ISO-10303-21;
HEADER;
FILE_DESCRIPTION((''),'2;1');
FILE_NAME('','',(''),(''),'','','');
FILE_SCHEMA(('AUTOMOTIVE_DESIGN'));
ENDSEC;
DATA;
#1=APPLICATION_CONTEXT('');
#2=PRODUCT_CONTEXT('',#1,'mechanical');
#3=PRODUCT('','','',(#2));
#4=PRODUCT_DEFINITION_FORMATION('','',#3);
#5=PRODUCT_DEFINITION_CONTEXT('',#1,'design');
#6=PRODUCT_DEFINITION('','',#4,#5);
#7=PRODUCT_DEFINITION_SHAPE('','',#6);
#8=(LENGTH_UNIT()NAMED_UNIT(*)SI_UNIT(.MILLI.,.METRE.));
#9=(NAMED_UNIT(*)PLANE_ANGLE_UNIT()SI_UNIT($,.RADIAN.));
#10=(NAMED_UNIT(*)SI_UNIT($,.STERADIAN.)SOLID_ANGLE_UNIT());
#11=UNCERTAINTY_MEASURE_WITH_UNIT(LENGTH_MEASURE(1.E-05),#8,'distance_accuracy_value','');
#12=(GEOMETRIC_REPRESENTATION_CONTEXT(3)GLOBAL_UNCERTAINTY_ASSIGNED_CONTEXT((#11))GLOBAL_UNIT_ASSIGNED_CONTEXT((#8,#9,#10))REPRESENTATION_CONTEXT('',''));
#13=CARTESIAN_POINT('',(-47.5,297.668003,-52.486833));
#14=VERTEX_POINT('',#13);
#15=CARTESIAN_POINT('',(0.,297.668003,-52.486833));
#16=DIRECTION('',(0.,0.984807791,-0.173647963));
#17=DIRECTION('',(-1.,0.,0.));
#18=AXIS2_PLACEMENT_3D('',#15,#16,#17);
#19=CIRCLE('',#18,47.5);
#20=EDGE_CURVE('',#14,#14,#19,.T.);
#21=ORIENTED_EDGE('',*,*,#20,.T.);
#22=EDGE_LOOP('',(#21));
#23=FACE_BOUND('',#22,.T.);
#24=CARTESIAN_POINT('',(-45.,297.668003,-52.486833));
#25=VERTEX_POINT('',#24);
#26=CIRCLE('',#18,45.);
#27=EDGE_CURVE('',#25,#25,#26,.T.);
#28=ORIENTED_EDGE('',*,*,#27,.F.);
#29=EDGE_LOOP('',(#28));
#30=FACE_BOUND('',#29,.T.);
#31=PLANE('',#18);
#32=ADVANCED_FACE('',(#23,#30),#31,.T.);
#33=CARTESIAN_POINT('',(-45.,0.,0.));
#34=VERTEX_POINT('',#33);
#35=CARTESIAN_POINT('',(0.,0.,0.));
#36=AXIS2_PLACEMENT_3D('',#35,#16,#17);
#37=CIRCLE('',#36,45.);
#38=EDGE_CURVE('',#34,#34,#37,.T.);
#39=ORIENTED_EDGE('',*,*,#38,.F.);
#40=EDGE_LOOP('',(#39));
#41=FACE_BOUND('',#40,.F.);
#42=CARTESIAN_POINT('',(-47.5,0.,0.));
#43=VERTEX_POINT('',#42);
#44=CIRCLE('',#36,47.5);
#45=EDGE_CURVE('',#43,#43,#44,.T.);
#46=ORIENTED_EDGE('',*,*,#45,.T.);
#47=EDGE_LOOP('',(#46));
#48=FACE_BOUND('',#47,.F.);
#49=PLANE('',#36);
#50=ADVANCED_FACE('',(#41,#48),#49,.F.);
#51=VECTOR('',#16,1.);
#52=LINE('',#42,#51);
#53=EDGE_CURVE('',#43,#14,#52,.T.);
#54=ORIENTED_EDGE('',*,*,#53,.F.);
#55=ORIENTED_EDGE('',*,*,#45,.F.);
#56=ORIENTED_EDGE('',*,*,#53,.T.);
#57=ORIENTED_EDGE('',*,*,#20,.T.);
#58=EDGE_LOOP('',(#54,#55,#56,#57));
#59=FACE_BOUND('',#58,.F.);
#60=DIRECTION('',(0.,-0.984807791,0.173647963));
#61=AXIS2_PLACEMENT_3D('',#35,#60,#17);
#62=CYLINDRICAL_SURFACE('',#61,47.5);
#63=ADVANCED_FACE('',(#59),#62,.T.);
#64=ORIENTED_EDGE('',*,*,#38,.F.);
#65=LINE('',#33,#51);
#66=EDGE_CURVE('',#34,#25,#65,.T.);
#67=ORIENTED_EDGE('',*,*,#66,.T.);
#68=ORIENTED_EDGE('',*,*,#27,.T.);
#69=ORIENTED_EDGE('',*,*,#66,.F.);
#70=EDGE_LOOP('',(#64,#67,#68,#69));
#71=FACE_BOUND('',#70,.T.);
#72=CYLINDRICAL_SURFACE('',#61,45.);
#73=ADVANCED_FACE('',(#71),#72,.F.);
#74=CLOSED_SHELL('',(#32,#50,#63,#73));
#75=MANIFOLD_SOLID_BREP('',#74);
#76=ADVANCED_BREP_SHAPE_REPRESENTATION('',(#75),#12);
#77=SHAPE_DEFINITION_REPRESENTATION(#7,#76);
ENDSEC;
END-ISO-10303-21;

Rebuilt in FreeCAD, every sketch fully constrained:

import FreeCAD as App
import Part
import Sketcher

V = App.Vector
Q = App.Units.Quantity


def faces_at(feature, points):
    """Names of the faces that lie closest to the given points."""
    faces = feature.Shape.Faces
    near = lambda p: min(range(len(faces)), key=lambda i: faces[i].distToShape(Part.Vertex(*p))[0])
    return sorted({f"Face{near(p) + 1}" for p in points})

doc = App.newDocument("Part")
params = doc.addObject("Spreadsheet::Sheet", "Params")
for row, (alias, value) in enumerate([
    ("sketch1_diameter", "95 mm"),
    ("pad1_length", "302.26 mm"),
    ("thickness_wall", "2.5 mm"),
], start=1):
    params.set(f"A{row}", alias)
    params.set(f"B{row}", "=" + value)
    params.setAlias(f"B{row}", alias)

body = doc.addObject("PartDesign::Body", "Body")

# Sketch on an angled plane
sketch1 = body.newObject("Sketcher::SketchObject", "Sketch")
sketch1.Placement = App.Placement(V(0, 0, 0), App.Rotation(V(-1, 0, 0), V(0, 0.173647963, 0.984807791), V(0, 0.984807791, -0.173647963), "ZXY"))
sketch1.addGeometry(Part.Circle(V(0, 0, 0), V(0, 0, 1), 48), False)
sketch1.addConstraint([
    Sketcher.Constraint("Coincident", 0, 3, -1, 1),
    Sketcher.Constraint("Diameter", 0, Q("95 mm")),
])
sketch1.setExpression("Constraints[1]", "Params.sketch1_diameter")
pad1 = body.newObject("PartDesign::Pad", "Pad")
pad1.Profile = sketch1
pad1.setExpression("Length", "Params.pad1_length")
doc.recompute()

thickness = body.newObject("PartDesign::Thickness", "Thickness")
thickness.Base = (pad1, faces_at(pad1, [(0, 0, 0), (0, 297.668, -52.487)]))
thickness.setExpression("Value", "Params.thickness_wall")
thickness.Reversed = True
thickness.Join = "Arc"

doc.recompute()
